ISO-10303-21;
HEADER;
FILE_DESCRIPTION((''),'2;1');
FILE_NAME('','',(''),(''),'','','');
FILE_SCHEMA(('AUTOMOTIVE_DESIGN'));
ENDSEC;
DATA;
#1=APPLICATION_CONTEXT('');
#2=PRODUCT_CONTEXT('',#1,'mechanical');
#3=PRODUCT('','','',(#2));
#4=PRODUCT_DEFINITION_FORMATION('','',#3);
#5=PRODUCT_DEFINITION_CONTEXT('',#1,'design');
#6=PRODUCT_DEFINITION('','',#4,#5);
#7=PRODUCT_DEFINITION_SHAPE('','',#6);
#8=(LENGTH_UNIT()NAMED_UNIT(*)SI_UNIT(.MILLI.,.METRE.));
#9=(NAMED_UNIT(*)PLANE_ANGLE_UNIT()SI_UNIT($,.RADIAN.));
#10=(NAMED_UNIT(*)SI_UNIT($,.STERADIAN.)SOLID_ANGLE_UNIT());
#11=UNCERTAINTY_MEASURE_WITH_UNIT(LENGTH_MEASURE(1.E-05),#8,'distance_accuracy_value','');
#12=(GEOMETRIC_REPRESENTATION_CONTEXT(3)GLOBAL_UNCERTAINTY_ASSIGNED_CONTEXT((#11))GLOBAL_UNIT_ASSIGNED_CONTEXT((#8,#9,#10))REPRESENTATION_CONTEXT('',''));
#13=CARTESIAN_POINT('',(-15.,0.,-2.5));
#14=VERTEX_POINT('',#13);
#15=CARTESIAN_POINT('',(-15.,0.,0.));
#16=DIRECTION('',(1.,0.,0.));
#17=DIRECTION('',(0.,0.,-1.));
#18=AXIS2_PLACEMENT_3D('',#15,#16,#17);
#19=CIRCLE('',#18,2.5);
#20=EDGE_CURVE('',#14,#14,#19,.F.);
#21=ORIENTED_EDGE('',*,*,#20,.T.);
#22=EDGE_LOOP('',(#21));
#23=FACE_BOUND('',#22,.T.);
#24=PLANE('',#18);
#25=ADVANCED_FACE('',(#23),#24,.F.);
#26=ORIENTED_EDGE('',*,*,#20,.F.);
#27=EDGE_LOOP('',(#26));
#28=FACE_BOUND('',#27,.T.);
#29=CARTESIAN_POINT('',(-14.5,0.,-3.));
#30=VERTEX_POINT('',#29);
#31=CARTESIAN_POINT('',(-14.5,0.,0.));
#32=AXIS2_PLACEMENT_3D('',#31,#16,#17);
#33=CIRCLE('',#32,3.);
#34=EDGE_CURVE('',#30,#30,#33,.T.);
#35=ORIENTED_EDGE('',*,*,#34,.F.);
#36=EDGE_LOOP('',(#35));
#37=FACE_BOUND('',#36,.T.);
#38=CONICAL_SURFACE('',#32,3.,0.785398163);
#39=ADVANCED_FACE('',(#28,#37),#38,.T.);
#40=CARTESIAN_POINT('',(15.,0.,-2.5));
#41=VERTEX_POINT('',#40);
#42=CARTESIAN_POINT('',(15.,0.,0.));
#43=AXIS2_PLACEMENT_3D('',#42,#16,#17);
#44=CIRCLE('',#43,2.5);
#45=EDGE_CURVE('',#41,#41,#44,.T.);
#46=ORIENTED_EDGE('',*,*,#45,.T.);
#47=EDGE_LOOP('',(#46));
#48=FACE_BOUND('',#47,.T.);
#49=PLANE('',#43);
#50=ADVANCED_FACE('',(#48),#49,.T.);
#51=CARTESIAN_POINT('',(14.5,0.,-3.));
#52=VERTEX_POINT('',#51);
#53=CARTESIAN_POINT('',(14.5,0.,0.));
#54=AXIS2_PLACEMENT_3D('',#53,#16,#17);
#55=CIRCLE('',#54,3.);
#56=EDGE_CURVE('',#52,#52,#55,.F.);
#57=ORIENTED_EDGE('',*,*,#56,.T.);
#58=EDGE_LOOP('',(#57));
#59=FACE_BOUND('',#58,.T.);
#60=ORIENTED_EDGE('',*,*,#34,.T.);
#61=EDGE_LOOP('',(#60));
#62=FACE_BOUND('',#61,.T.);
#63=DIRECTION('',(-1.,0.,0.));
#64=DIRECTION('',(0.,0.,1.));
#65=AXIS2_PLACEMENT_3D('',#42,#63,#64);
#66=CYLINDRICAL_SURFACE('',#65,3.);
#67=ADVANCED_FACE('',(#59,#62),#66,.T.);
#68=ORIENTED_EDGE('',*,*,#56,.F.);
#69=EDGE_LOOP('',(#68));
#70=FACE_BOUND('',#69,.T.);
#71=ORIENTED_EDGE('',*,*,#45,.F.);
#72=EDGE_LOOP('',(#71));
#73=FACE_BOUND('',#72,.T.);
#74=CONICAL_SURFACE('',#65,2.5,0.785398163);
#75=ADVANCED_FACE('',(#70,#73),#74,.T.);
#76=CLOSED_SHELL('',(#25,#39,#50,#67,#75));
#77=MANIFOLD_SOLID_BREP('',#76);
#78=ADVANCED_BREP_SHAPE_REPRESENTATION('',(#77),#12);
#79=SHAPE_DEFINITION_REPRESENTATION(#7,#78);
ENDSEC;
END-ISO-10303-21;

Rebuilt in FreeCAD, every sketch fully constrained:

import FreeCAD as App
import Part
import Sketcher

V = App.Vector
Q = App.Units.Quantity


def edges_at(feature, points):
    """Names of the edges that pass closest to the given points."""
    edges = feature.Shape.Edges
    near = lambda p: min(range(len(edges)), key=lambda i: edges[i].distToShape(Part.Vertex(*p))[0])
    return sorted({f"Edge{near(p) + 1}" for p in points})

doc = App.newDocument("Part")
body = doc.addObject("PartDesign::Body", "Body")

sketch1 = doc.addObject("Sketcher::SketchObject", "Sketch")
body.addObject(sketch1)
sketch1.AttachmentSupport = (doc.YZ_Plane, [""])
sketch1.MapMode = "FlatFace"
sketch1.addGeometry(Part.Circle(V(0, 0, 0), V(0, 0, 1), 3), False)
sketch1.addConstraint(Sketcher.Constraint("Coincident", 0, 3, -1, 1))
sketch1.addConstraint(Sketcher.Constraint("Diameter", 0, Q("6 mm")))
pad1 = doc.addObject("PartDesign::Pad", "Pad")
body.addObject(pad1)
pad1.Profile = sketch1
pad1.Length = 30
pad1.Midplane = True
doc.recompute()

chamfer = doc.addObject("PartDesign::Chamfer", "Chamfer")
body.addObject(chamfer)
chamfer.Base = (pad1, edges_at(pad1, [(-15, 0, 3), (15, 0, 3)]))
chamfer.Size = 0.5

doc.recompute()
